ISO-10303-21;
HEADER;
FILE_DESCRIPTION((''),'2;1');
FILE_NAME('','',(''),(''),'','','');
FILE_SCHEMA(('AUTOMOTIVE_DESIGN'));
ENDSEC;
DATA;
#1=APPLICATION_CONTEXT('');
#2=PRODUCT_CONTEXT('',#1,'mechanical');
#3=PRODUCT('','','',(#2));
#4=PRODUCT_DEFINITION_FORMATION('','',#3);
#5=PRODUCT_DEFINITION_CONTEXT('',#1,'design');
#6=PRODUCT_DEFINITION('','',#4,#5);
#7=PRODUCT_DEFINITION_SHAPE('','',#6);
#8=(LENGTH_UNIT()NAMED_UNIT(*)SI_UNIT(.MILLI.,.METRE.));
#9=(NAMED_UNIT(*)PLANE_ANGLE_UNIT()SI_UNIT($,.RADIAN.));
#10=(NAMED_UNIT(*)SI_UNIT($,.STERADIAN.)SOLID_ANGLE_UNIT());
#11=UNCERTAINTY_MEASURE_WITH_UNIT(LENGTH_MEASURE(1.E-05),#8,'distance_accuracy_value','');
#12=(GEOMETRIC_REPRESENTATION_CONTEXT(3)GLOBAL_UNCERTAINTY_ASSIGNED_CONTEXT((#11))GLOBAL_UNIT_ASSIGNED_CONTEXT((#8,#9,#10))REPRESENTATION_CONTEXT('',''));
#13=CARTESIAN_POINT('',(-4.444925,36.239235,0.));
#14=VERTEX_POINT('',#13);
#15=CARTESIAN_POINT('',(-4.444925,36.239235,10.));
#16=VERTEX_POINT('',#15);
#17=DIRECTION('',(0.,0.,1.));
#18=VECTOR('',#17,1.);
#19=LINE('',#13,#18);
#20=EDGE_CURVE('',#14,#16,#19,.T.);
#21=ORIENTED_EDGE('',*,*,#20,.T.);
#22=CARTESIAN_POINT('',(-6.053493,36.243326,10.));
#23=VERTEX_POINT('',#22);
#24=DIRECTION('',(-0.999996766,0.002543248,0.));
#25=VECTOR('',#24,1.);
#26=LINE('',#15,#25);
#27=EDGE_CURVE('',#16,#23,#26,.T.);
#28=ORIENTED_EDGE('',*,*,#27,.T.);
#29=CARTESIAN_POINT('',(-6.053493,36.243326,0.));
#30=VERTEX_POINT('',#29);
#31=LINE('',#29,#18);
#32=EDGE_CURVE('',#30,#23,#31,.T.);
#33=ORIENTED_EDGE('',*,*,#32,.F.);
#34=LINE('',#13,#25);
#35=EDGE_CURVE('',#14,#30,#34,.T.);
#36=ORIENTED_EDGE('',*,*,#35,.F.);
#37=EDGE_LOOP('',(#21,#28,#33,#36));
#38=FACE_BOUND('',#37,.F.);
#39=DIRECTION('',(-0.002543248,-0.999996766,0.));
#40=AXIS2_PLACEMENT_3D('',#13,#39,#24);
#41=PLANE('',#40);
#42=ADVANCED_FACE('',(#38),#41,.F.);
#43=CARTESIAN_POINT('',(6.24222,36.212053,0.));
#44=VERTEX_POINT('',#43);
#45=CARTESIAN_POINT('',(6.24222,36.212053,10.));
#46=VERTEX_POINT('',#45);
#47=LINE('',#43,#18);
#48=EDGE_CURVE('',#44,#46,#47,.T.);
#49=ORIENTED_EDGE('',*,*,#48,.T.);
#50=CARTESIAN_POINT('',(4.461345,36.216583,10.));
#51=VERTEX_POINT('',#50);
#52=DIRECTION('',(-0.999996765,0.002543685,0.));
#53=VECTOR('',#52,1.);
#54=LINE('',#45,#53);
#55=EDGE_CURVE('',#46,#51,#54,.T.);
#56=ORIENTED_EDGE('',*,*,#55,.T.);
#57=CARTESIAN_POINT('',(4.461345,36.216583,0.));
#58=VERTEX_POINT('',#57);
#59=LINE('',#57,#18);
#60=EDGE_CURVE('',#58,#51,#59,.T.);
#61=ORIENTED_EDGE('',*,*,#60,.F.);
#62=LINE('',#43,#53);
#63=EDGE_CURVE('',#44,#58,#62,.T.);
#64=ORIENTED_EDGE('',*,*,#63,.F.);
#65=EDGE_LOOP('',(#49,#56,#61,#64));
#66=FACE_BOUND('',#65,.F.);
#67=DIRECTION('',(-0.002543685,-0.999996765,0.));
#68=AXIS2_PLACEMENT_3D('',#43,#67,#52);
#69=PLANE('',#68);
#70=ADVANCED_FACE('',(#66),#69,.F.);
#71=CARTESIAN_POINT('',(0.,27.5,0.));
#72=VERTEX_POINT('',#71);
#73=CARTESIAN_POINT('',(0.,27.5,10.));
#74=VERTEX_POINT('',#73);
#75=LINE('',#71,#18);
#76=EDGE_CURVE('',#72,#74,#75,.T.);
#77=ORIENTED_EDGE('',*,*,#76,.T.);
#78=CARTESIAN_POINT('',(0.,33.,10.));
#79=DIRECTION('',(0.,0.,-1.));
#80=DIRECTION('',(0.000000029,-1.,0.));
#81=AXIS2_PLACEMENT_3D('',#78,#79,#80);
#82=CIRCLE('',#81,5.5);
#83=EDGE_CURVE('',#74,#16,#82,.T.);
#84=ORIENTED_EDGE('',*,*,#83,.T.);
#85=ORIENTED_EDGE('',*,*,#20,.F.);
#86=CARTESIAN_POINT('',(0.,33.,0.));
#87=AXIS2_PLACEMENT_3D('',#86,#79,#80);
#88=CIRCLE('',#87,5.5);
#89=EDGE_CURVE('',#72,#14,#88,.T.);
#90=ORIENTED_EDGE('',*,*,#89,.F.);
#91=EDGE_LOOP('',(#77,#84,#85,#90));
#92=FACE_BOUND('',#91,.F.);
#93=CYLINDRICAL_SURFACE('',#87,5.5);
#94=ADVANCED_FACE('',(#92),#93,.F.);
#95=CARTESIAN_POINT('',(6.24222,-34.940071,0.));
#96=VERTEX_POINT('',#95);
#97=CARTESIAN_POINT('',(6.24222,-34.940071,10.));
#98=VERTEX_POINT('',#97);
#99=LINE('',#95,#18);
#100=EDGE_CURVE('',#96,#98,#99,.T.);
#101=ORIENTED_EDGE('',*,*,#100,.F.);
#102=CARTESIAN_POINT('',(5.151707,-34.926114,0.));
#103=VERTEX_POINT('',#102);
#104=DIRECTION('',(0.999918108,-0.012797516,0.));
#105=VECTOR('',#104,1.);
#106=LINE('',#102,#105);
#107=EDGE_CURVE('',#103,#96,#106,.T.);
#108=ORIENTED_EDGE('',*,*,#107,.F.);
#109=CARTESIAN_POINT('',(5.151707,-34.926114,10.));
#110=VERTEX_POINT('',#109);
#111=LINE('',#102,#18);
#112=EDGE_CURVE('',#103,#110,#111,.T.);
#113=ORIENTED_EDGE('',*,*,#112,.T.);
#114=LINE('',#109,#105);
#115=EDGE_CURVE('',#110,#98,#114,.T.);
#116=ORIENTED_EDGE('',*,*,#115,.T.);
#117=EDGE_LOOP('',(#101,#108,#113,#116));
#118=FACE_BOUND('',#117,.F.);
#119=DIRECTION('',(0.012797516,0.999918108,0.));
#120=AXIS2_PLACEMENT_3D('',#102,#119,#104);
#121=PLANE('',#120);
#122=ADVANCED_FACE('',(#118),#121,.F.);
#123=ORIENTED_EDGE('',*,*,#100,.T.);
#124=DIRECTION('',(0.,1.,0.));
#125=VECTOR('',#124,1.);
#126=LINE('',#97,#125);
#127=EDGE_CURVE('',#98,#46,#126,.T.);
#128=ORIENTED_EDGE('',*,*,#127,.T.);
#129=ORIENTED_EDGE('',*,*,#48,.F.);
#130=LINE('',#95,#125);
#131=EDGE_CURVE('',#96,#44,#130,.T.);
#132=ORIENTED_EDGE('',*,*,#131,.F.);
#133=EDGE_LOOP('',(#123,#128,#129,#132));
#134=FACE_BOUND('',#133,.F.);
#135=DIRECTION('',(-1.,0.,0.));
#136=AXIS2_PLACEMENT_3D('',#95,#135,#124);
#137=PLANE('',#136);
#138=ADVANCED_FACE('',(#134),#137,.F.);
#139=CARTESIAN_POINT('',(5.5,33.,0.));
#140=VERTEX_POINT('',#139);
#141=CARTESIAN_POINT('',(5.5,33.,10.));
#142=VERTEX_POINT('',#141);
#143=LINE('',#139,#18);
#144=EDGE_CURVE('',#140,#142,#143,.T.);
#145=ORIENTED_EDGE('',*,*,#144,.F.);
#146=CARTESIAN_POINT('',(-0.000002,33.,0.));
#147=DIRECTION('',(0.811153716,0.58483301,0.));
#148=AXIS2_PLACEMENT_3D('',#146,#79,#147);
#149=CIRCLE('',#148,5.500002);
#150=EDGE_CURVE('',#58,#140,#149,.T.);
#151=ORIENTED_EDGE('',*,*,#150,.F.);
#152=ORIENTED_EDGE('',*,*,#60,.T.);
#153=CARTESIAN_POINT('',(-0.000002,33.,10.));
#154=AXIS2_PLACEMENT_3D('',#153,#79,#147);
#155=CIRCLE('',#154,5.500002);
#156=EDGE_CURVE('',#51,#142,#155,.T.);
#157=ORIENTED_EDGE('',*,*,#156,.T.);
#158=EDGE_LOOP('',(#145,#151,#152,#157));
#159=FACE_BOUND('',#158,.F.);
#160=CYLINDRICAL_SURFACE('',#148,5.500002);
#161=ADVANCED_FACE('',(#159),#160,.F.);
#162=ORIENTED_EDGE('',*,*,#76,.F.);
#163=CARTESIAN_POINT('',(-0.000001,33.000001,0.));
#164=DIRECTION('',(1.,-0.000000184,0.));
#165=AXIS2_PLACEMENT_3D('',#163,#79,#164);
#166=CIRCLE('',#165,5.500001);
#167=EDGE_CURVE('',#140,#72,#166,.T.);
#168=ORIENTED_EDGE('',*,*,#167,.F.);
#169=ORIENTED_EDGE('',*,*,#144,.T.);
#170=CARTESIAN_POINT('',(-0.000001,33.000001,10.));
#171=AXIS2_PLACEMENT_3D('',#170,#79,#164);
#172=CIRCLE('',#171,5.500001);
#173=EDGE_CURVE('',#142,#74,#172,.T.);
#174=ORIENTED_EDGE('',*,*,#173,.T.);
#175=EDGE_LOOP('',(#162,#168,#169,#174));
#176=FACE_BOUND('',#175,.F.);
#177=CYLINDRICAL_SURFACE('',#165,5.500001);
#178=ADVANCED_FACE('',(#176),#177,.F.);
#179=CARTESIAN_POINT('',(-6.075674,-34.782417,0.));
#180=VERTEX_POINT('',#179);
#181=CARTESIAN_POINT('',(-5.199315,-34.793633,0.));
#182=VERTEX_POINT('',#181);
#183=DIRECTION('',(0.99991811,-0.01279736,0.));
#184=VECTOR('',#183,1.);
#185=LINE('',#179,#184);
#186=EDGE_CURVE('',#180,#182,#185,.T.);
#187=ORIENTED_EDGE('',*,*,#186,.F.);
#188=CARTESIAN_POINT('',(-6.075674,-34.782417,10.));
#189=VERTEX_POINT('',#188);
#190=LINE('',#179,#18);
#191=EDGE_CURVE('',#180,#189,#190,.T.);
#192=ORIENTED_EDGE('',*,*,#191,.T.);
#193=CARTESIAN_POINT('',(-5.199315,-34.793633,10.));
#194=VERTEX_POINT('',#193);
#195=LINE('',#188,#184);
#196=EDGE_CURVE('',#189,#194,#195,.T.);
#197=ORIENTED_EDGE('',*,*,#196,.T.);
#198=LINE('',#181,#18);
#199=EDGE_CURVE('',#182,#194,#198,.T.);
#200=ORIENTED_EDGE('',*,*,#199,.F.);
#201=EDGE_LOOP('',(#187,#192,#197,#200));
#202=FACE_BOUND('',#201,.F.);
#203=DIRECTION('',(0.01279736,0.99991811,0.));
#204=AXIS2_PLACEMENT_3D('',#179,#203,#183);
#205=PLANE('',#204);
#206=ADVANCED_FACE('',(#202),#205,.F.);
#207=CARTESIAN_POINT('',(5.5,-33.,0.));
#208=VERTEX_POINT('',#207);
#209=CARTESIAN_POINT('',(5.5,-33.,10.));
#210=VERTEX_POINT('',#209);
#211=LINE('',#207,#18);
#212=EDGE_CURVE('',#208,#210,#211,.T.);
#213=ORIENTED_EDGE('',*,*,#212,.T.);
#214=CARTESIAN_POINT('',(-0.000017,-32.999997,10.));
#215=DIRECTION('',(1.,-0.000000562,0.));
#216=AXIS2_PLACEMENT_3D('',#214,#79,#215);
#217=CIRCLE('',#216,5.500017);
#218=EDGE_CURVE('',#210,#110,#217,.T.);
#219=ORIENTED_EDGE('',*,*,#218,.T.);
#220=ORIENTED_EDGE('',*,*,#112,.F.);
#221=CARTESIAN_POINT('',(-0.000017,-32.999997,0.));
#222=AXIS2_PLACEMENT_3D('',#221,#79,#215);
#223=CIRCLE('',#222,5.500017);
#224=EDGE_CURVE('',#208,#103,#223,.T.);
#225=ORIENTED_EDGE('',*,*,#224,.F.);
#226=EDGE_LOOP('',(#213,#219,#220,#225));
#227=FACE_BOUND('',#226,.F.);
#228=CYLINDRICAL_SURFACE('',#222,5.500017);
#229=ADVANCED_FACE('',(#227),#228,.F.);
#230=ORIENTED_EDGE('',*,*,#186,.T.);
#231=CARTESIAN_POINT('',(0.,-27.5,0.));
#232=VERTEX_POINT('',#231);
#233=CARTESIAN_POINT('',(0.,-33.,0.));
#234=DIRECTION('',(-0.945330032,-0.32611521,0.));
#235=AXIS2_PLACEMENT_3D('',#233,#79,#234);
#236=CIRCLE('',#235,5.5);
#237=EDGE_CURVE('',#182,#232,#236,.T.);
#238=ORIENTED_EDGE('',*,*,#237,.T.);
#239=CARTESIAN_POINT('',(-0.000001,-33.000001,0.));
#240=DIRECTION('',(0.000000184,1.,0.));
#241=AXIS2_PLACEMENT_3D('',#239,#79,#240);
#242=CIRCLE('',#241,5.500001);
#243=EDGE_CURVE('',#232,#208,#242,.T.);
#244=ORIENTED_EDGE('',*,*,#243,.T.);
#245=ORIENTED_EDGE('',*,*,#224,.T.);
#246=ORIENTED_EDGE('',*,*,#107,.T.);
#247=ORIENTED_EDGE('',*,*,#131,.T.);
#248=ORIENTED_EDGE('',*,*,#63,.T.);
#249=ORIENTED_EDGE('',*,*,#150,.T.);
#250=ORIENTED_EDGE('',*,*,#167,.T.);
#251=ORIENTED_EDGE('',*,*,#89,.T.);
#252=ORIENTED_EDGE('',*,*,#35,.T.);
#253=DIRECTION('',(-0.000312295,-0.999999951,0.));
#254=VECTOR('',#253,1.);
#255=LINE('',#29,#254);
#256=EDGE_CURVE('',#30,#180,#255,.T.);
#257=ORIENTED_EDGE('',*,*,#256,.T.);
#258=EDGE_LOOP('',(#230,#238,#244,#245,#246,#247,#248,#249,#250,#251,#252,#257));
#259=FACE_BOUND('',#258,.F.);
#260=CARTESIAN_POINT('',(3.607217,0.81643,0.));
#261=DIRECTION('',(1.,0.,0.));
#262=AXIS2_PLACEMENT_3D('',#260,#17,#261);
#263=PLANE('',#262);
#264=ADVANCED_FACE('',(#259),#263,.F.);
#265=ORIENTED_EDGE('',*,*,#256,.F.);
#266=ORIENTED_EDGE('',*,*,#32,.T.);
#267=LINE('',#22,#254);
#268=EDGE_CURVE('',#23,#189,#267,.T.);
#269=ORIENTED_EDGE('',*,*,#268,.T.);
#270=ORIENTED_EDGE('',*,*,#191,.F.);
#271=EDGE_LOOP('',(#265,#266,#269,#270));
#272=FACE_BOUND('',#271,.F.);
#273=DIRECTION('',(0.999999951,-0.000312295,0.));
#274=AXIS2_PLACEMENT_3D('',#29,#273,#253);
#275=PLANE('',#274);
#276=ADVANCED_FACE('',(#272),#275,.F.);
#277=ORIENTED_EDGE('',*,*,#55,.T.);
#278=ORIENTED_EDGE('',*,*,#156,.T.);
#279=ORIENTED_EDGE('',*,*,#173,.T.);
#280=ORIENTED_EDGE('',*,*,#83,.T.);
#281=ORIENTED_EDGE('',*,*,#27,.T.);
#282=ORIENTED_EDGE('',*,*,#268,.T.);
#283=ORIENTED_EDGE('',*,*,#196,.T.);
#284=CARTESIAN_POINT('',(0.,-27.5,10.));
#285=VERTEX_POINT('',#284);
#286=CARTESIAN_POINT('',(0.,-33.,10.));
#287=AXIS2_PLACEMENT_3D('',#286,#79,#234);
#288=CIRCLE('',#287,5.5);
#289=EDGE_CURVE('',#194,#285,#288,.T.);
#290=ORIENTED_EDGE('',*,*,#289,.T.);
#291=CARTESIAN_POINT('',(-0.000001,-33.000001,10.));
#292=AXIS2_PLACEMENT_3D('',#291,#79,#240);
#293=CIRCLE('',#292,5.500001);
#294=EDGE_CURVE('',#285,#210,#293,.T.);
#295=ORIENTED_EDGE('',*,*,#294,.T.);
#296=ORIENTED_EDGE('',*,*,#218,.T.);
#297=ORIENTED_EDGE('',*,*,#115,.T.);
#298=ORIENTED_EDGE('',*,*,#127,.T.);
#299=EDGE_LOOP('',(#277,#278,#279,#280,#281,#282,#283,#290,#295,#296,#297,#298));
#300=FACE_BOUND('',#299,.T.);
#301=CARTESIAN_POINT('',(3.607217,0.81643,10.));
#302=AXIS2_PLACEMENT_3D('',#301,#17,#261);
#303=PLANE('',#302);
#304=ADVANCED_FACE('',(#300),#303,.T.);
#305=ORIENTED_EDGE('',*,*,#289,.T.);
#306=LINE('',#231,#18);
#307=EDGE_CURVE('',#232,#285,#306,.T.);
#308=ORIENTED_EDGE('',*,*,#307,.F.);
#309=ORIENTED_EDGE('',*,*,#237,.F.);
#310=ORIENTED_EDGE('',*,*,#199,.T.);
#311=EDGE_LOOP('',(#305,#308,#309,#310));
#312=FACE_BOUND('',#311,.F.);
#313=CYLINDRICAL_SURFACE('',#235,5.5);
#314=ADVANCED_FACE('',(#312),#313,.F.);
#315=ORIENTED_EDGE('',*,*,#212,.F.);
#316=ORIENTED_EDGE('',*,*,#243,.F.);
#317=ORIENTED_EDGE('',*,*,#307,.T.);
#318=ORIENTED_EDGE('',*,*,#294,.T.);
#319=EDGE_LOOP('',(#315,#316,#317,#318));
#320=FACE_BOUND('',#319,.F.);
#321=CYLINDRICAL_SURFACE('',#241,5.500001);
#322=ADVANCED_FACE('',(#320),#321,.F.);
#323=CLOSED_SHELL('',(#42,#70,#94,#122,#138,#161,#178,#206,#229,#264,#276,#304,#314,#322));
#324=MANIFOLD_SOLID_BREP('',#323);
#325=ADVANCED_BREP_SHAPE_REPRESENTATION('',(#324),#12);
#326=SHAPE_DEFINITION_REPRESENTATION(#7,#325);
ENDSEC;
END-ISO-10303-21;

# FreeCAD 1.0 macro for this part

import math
import FreeCAD as App
import Part
import Sketcher

V = App.Vector

doc = App.newDocument("Part")
body = doc.addObject("PartDesign::Body", "Body")

sketch1 = body.newObject("Sketcher::SketchObject", "Sketch")
sketch1.AttachmentSupport = (doc.getObject("XY_Plane"), [""])
sketch1.MapMode = "FlatFace"
sketch1.addGeometry([
    Part.ArcOfCircle(Part.Circle(V(-0.000001, -33.000001, 0), V(0, 0, 1), 5.500001), math.radians(0.000011), math.radians(89.999989)),
    Part.ArcOfCircle(Part.Circle(V(-0.000017, -32.999997, 0), V(0, 0, 1), 5.500017), math.radians(-20.499671), math.radians(-0.000032)),
    Part.LineSegment(V(5.151707, -34.926114, 0), V(6.24222, -34.940071, 0)),
    Part.LineSegment(V(6.24222, -34.940071, 0), V(6.24222, 36.212053, 0)),
    Part.LineSegment(V(6.24222, 36.212053, 0), V(4.461345, 36.216583, 0)),
    Part.ArcOfCircle(Part.Circle(V(-0.000002, 33, 0), V(0, 0, 1), 5.500002), math.radians(-0.000001), math.radians(35.791194)),
    Part.ArcOfCircle(Part.Circle(V(-0.000001, 33.000001, 0), V(0, 0, 1), 5.500001), math.radians(-89.999989), math.radians(-0.000011)),
    Part.ArcOfCircle(Part.Circle(V(0, 33, 0), V(0, 0, 1), 5.5), math.radians(143.917339), math.radians(270.000002)),
    Part.LineSegment(V(-4.444925, 36.239235, 0), V(-6.053493, 36.243326, 0)),
    Part.LineSegment(V(-6.053493, 36.243326, 0), V(-6.075674, -34.782417, 0)),
    Part.LineSegment(V(-6.075674, -34.782417, 0), V(-5.199315, -34.793633, 0)),
    Part.ArcOfCircle(Part.Circle(V(0, -33, 0), V(0, 0, 1), 5.5), math.radians(89.999997), math.radians(199.033153)),
], False)
sketch1.addConstraint([
    Sketcher.Constraint("Tangent", 0, 1, 1, 2),
    Sketcher.Constraint("Coincident", 1, 1, 2, 1),
    Sketcher.Constraint("Coincident", 2, 2, 3, 1),
    Sketcher.Constraint("Coincident", 3, 2, 4, 1),
    Sketcher.Constraint("Coincident", 4, 2, 5, 2),
    Sketcher.Constraint("Tangent", 5, 1, 6, 2),
    Sketcher.Constraint("Tangent", 6, 1, 7, 2),
    Sketcher.Constraint("Coincident", 7, 1, 8, 1),
    Sketcher.Constraint("Coincident", 8, 2, 9, 1),
    Sketcher.Constraint("Coincident", 9, 2, 10, 1),
    Sketcher.Constraint("Coincident", 10, 2, 11, 2),
    Sketcher.Constraint("Tangent", 11, 1, 0, 2),
    Sketcher.Constraint("Vertical", 3),
    Sketcher.Constraint("Coincident", 7, 3, 5, 3),
    Sketcher.Constraint("Equal", 0, 5),
    Sketcher.Constraint("Equal", 7, 11),
    Sketcher.Constraint("Symmetric", 0, 3, 5, 3, -1, 1),
    Sketcher.Constraint("Symmetric", 0, 1, 5, 1, -1),
    Sketcher.Constraint("PointOnObject", 6, 1, -2),
    Sketcher.Constraint("PointOnObject", 11, 1, -2),
    Sketcher.Constraint("Parallel", 4, 8),
    Sketcher.Constraint("Parallel", 2, 10),
    Sketcher.Constraint("Horizontal", 11, 3, 0, 1),
    Sketcher.Constraint("Radius", 0, 5.500001),
    Sketcher.Constraint("DistanceY", 0, 3, -1, 1, 33.000001),
    Sketcher.Constraint("Radius", 1, 5.500017),
    Sketcher.Constraint("Distance", 4, 1.780881),
    Sketcher.Constraint("Distance", 10, 0.876431),
    Sketcher.Constraint("DistanceY", 3, 1, 3, 2, 71.152124),
    Sketcher.Constraint("DistanceX", -1, 1, 2, 2, 6.24222),
    Sketcher.Constraint("DistanceY", 2, 2, -1, 1, 34.940071),
    Sketcher.Constraint("DistanceX", 0, 3, 1, 1, 5.151708),
    Sketcher.Constraint("DistanceX", 7, 1, 4, 2, 8.90627),
    Sketcher.Constraint("DistanceX", 8, 2, 7, 1, 1.608568),
    Sketcher.Constraint("DistanceY", 9, 2, 1, 3, 1.78242),
])
pad1 = body.newObject("PartDesign::Pad", "Pad")
pad1.Profile = sketch1
pad1.Length = 10

doc.recompute()
